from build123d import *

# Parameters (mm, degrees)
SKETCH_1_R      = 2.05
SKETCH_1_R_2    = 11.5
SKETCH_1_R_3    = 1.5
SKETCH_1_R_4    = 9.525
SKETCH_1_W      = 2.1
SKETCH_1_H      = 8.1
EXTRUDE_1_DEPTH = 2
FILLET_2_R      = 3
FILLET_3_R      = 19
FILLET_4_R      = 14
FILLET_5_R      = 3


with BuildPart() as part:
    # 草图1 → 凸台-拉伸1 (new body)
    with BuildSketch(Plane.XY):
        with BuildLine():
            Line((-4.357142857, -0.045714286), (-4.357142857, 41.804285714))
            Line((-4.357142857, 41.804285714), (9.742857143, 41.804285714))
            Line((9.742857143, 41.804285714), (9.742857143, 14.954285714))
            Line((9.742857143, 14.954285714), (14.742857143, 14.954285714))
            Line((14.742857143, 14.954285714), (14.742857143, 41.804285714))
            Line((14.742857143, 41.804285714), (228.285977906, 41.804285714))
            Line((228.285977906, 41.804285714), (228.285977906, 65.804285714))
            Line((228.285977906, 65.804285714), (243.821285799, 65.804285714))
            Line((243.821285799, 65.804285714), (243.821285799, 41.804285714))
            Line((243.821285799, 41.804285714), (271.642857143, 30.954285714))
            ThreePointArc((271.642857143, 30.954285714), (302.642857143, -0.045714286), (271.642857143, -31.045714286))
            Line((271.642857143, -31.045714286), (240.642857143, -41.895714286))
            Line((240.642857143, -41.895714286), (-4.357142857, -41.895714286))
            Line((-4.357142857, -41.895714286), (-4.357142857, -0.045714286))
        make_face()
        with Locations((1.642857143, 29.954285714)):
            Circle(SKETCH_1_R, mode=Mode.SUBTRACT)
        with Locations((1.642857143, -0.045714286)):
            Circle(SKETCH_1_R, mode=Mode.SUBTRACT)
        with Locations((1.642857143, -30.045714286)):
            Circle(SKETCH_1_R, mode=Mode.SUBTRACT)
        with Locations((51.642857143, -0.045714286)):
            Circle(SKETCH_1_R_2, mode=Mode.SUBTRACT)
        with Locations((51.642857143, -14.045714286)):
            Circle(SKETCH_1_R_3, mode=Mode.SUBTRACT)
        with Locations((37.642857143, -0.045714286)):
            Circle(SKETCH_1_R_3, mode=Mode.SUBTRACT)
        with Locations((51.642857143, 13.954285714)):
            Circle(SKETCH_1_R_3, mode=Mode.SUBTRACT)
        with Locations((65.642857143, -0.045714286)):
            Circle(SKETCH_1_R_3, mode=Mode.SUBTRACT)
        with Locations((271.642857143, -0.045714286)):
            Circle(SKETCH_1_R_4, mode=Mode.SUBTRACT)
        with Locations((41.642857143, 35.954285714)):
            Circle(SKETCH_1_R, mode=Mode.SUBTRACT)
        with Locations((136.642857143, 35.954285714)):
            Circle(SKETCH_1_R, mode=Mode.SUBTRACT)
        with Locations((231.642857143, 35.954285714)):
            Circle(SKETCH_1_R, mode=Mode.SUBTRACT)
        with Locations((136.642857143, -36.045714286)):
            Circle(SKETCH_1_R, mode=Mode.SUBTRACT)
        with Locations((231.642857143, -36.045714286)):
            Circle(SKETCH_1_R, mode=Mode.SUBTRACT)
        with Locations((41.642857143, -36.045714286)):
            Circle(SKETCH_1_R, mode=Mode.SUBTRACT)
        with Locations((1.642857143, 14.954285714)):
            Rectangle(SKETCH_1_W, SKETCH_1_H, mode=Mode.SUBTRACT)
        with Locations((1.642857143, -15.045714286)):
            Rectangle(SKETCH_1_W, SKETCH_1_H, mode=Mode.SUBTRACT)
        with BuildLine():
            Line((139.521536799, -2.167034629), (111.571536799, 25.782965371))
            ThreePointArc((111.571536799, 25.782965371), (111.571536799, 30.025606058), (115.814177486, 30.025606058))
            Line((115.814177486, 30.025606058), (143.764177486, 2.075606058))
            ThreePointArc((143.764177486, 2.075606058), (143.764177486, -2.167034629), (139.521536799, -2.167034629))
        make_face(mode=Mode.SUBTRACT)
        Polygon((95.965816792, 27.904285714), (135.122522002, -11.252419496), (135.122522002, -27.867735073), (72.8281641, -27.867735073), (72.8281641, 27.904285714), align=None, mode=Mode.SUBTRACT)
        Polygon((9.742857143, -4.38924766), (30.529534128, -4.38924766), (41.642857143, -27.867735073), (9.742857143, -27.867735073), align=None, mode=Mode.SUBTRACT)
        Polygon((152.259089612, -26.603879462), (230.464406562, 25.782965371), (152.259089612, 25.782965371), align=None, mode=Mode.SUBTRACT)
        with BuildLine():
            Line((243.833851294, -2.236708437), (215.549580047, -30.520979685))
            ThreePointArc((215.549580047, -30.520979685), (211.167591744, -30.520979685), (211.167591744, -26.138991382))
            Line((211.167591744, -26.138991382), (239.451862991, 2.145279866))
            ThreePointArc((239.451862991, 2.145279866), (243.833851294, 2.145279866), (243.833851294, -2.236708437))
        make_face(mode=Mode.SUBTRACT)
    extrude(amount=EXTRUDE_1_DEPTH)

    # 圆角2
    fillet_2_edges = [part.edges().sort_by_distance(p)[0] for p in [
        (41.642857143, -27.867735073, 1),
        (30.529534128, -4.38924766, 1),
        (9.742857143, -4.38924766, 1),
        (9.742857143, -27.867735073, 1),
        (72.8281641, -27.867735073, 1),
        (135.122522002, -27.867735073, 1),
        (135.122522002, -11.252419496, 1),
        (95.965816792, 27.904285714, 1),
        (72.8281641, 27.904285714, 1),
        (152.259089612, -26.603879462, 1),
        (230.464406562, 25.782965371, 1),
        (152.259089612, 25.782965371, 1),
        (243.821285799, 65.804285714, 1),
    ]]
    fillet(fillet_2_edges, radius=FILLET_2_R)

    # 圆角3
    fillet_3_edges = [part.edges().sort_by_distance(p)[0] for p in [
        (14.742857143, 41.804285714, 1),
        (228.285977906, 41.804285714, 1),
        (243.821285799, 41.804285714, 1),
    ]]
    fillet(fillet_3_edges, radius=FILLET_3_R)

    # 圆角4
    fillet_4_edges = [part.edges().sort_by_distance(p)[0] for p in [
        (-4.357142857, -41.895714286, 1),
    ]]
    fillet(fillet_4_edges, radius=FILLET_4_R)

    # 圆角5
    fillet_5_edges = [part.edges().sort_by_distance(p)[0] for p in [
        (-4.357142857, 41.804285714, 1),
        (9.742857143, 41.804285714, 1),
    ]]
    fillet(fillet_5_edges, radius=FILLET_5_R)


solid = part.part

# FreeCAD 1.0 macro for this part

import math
import FreeCAD as App
import Part
import Sketcher

V = App.Vector
Q = App.Units.Quantity


def edges_at(feature, points):
    """Names of the edges that pass closest to the given points."""
    edges = feature.Shape.Edges
    near = lambda p: min(range(len(edges)), key=lambda i: edges[i].distToShape(Part.Vertex(*p))[0])
    return sorted({f"Edge{near(p) + 1}" for p in points})

doc = App.newDocument("Part")
body = doc.addObject("PartDesign::Body", "Body")

sketch1 = body.newObject("Sketcher::SketchObject", "Sketch")
sketch1.AttachmentSupport = (doc.getObject("XY_Plane"), [""])
sketch1.MapMode = "FlatFace"
sketch1.addGeometry(Part.LineSegment(V(9.7, 41.8, 0), V(-4.4, 41.8, 0)), False)
sketch1.addGeometry(Part.LineSegment(V(-4.4, 41.8, 0), V(-4.4, -41.9, 0)), False)
sketch1.addGeometry(Part.LineSegment(V(-4.4, -41.9, 0), V(240.6, -41.9, 0)), False)
sketch1.addGeometry(Part.LineSegment(V(240.6, -41.9, 0), V(271.6, -31, 0)), False)
sketch1.addGeometry(Part.ArcOfCircle(Part.Circle(V(271.6, 0, 0), V(0, 0, 1), 31), math.radians(-90), math.radians(90)), False)
sketch1.addGeometry(Part.LineSegment(V(271.6, 31, 0), V(243.8, 41.8, 0)), False)
sketch1.addGeometry(Part.LineSegment(V(243.8, 41.8, 0), V(243.8, 65.8, 0)), False)
sketch1.addGeometry(Part.LineSegment(V(243.8, 65.8, 0), V(228.3, 65.8, 0)), False)
sketch1.addGeometry(Part.LineSegment(V(228.3, 65.8, 0), V(228.3, 41.8, 0)), False)
sketch1.addGeometry(Part.LineSegment(V(228.3, 41.8, 0), V(14.7, 41.8, 0)), False)
sketch1.addGeometry(Part.LineSegment(V(14.7, 41.8, 0), V(14.7, 15, 0)), False)
sketch1.addGeometry(Part.LineSegment(V(14.7, 15, 0), V(9.7, 15, 0)), False)
sketch1.addGeometry(Part.LineSegment(V(9.7, 15, 0), V(9.7, 41.8, 0)), False)
sketch1.addGeometry(Part.Circle(V(231.6, -36, 0), V(0, 0, 1), 2), False)
sketch1.addGeometry(Part.LineSegment(V(243.8, -2.2, 0), V(215.5, -30.5, 0)), False)
sketch1.addGeometry(Part.ArcOfCircle(Part.Circle(V(213.4, -28.3, 0), V(0, 0, 1), 3.1), math.radians(135), math.radians(315)), False)
sketch1.addGeometry(Part.LineSegment(V(211.2, -26.1, 0), V(239.5, 2.1, 0)), False)
sketch1.addGeometry(Part.ArcOfCircle(Part.Circle(V(241.6, 0, 0), V(0, 0, 1), 3.1), math.radians(-45), math.radians(135)), False)
sketch1.addGeometry(Part.LineSegment(V(152.3, -26.6, 0), V(152.3, 25.8, 0)), False)
sketch1.addGeometry(Part.LineSegment(V(152.3, 25.8, 0), V(230.5, 25.8, 0)), False)
sketch1.addGeometry(Part.LineSegment(V(230.5, 25.8, 0), V(152.3, -26.6, 0)), False)
sketch1.addGeometry(Part.Circle(V(136.6, -36, 0), V(0, 0, 1), 2), False)
sketch1.addGeometry(Part.Circle(V(41.6, -36, 0), V(0, 0, 1), 2), False)
sketch1.addGeometry(Part.Circle(V(1.6, -30, 0), V(0, 0, 1), 2), False)
sketch1.addGeometry(Part.Circle(V(51.6, -14, 0), V(0, 0, 1), 1.5), False)
sketch1.addGeometry(Part.LineSegment(V(9.7, -4.4, 0), V(30.5, -4.4, 0)), False)
sketch1.addGeometry(Part.LineSegment(V(30.5, -4.4, 0), V(41.6, -27.9, 0)), False)
sketch1.addGeometry(Part.LineSegment(V(41.6, -27.9, 0), V(9.7, -27.9, 0)), False)
sketch1.addGeometry(Part.LineSegment(V(9.7, -27.9, 0), V(9.7, -4.4, 0)), False)
sketch1.addGeometry(Part.LineSegment(V(0.6, -19.1, 0), V(0.6, -11, 0)), False)
sketch1.addGeometry(Part.LineSegment(V(0.6, -11, 0), V(2.7, -11, 0)), False)
sketch1.addGeometry(Part.LineSegment(V(2.7, -11, 0), V(2.7, -19.1, 0)), False)
sketch1.addGeometry(Part.LineSegment(V(2.7, -19.1, 0), V(0.6, -19.1, 0)), False)
sketch1.addGeometry(Part.Circle(V(271.6, 0, 0), V(0, 0, 1), 9.5), False)
sketch1.addGeometry(Part.Circle(V(231.6, 36, 0), V(0, 0, 1), 2), False)
sketch1.addGeometry(Part.LineSegment(V(96, 27.9, 0), V(135.1, -11.3, 0)), False)
sketch1.addGeometry(Part.LineSegment(V(135.1, -11.3, 0), V(135.1, -27.9, 0)), False)
sketch1.addGeometry(Part.LineSegment(V(135.1, -27.9, 0), V(72.8, -27.9, 0)), False)
sketch1.addGeometry(Part.LineSegment(V(72.8, -27.9, 0), V(72.8, 27.9, 0)), False)
sketch1.addGeometry(Part.LineSegment(V(72.8, 27.9, 0), V(96, 27.9, 0)), False)
sketch1.addGeometry(Part.LineSegment(V(139.5, -2.2, 0), V(111.6, 25.8, 0)), False)
sketch1.addGeometry(Part.ArcOfCircle(Part.Circle(V(113.7, 27.9, 0), V(0, 0, 1), 3), math.radians(45), math.radians(225)), False)
sketch1.addGeometry(Part.LineSegment(V(115.8, 30, 0), V(143.8, 2.1, 0)), False)
sketch1.addGeometry(Part.ArcOfCircle(Part.Circle(V(141.6, 0, 0), V(0, 0, 1), 3), math.radians(-135), math.radians(45)), False)
sketch1.addGeometry(Part.Circle(V(65.6, 0, 0), V(0, 0, 1), 1.5), False)
sketch1.addGeometry(Part.Circle(V(51.6, 0, 0), V(0, 0, 1), 11.5), False)
sketch1.addGeometry(Part.Circle(V(37.6, 0, 0), V(0, 0, 1), 1.5), False)
sketch1.addGeometry(Part.Circle(V(1.6, 0, 0), V(0, 0, 1), 2), False)
sketch1.addGeometry(Part.Circle(V(51.6, 14, 0), V(0, 0, 1), 1.5), False)
sketch1.addGeometry(Part.LineSegment(V(0.6, 10.9, 0), V(0.6, 19, 0)), False)
sketch1.addGeometry(Part.LineSegment(V(0.6, 19, 0), V(2.7, 19, 0)), False)
sketch1.addGeometry(Part.LineSegment(V(2.7, 19, 0), V(2.7, 10.9, 0)), False)
sketch1.addGeometry(Part.LineSegment(V(2.7, 10.9, 0), V(0.6, 10.9, 0)), False)
sketch1.addGeometry(Part.Circle(V(136.6, 36, 0), V(0, 0, 1), 2), False)
sketch1.addGeometry(Part.Circle(V(41.6, 36, 0), V(0, 0, 1), 2), False)
sketch1.addGeometry(Part.Circle(V(1.6, 30, 0), V(0, 0, 1), 2), False)
sketch1.addConstraint(Sketcher.Constraint("Coincident", 0, 2, 1, 1))
sketch1.addConstraint(Sketcher.Constraint("Coincident", 1, 2, 2, 1))
sketch1.addConstraint(Sketcher.Constraint("Coincident", 2, 2, 3, 1))
sketch1.addConstraint(Sketcher.Constraint("Coincident", 3, 2, 4, 1))
sketch1.addConstraint(Sketcher.Constraint("Coincident", 4, 2, 5, 1))
sketch1.addConstraint(Sketcher.Constraint("Coincident", 5, 2, 6, 1))
sketch1.addConstraint(Sketcher.Constraint("Coincident", 6, 2, 7, 1))
sketch1.addConstraint(Sketcher.Constraint("Coincident", 7, 2, 8, 1))
sketch1.addConstraint(Sketcher.Constraint("Coincident", 8, 2, 9, 1))
sketch1.addConstraint(Sketcher.Constraint("Coincident", 9, 2, 10, 1))
sketch1.addConstraint(Sketcher.Constraint("Coincident", 10, 2, 11, 1))
sketch1.addConstraint(Sketcher.Constraint("Coincident", 11, 2, 12, 1))
sketch1.addConstraint(Sketcher.Constraint("Coincident", 12, 2, 0, 1))
sketch1.addConstraint(Sketcher.Constraint("Tangent", 14, 2, 15, 2))
sketch1.addConstraint(Sketcher.Constraint("Tangent", 15, 1, 16, 1))
sketch1.addConstraint(Sketcher.Constraint("Tangent", 16, 2, 17, 2))
sketch1.addConstraint(Sketcher.Constraint("Tangent", 17, 1, 14, 1))
sketch1.addConstraint(Sketcher.Constraint("Coincident", 18, 2, 19, 1))
sketch1.addConstraint(Sketcher.Constraint("Coincident", 19, 2, 20, 1))
sketch1.addConstraint(Sketcher.Constraint("Coincident", 20, 2, 18, 1))
sketch1.addConstraint(Sketcher.Constraint("Coincident", 25, 2, 26, 1))
sketch1.addConstraint(Sketcher.Constraint("Coincident", 26, 2, 27, 1))
sketch1.addConstraint(Sketcher.Constraint("Coincident", 27, 2, 28, 1))
sketch1.addConstraint(Sketcher.Constraint("Coincident", 28, 2, 25, 1))
sketch1.addConstraint(Sketcher.Constraint("Coincident", 29, 2, 30, 1))
sketch1.addConstraint(Sketcher.Constraint("Coincident", 30, 2, 31, 1))
sketch1.addConstraint(Sketcher.Constraint("Coincident", 31, 2, 32, 1))
sketch1.addConstraint(Sketcher.Constraint("Coincident", 32, 2, 29, 1))
sketch1.addConstraint(Sketcher.Constraint("Coincident", 35, 2, 36, 1))
sketch1.addConstraint(Sketcher.Constraint("Coincident", 36, 2, 37, 1))
sketch1.addConstraint(Sketcher.Constraint("Coincident", 37, 2, 38, 1))
sketch1.addConstraint(Sketcher.Constraint("Coincident", 38, 2, 39, 1))
sketch1.addConstraint(Sketcher.Constraint("Coincident", 39, 2, 35, 1))
sketch1.addConstraint(Sketcher.Constraint("Tangent", 40, 2, 41, 2))
sketch1.addConstraint(Sketcher.Constraint("Tangent", 41, 1, 42, 1))
sketch1.addConstraint(Sketcher.Constraint("Tangent", 42, 2, 43, 2))
sketch1.addConstraint(Sketcher.Constraint("Tangent", 43, 1, 40, 1))
sketch1.addConstraint(Sketcher.Constraint("Coincident", 49, 2, 50, 1))
sketch1.addConstraint(Sketcher.Constraint("Coincident", 50, 2, 51, 1))
sketch1.addConstraint(Sketcher.Constraint("Coincident", 51, 2, 52, 1))
sketch1.addConstraint(Sketcher.Constraint("Coincident", 52, 2, 49, 1))
sketch1.addConstraint(Sketcher.Constraint("Horizontal", 0))
sketch1.addConstraint(Sketcher.Constraint("Vertical", 1))
sketch1.addConstraint(Sketcher.Constraint("Horizontal", 2))
sketch1.addConstraint(Sketcher.Constraint("Vertical", 6))
sketch1.addConstraint(Sketcher.Constraint("Horizontal", 7))
sketch1.addConstraint(Sketcher.Constraint("Vertical", 8))
sketch1.addConstraint(Sketcher.Constraint("Horizontal", 9))
sketch1.addConstraint(Sketcher.Constraint("Vertical", 10))
sketch1.addConstraint(Sketcher.Constraint("Horizontal", 11))
sketch1.addConstraint(Sketcher.Constraint("Vertical", 12))
sketch1.addConstraint(Sketcher.Constraint("Vertical", 18))
sketch1.addConstraint(Sketcher.Constraint("Horizontal", 19))
sketch1.addConstraint(Sketcher.Constraint("Horizontal", 25))
sketch1.addConstraint(Sketcher.Constraint("Horizontal", 27))
sketch1.addConstraint(Sketcher.Constraint("Vertical", 28))
sketch1.addConstraint(Sketcher.Constraint("Vertical", 29))
sketch1.addConstraint(Sketcher.Constraint("Horizontal", 30))
sketch1.addConstraint(Sketcher.Constraint("Vertical", 31))
sketch1.addConstraint(Sketcher.Constraint("Horizontal", 32))
sketch1.addConstraint(Sketcher.Constraint("Vertical", 36))
sketch1.addConstraint(Sketcher.Constraint("Horizontal", 37))
sketch1.addConstraint(Sketcher.Constraint("Vertical", 38))
sketch1.addConstraint(Sketcher.Constraint("Horizontal", 39))
sketch1.addConstraint(Sketcher.Constraint("Vertical", 49))
sketch1.addConstraint(Sketcher.Constraint("Horizontal", 50))
sketch1.addConstraint(Sketcher.Constraint("Vertical", 51))
sketch1.addConstraint(Sketcher.Constraint("Horizontal", 52))
sketch1.addConstraint(Sketcher.Constraint("Coincident", 33, 3, 4, 3))
sketch1.addConstraint(Sketcher.Constraint("Equal", 15, 17))
sketch1.addConstraint(Sketcher.Constraint("Equal", 13, 21))
sketch1.addConstraint(Sketcher.Constraint("Equal", 21, 22))
sketch1.addConstraint(Sketcher.Constraint("Equal", 22, 23))
sketch1.addConstraint(Sketcher.Constraint("Equal", 23, 34))
sketch1.addConstraint(Sketcher.Constraint("Equal", 41, 43))
sketch1.addConstraint(Sketcher.Constraint("Equal", 24, 44))
sketch1.addConstraint(Sketcher.Constraint("Equal", 44, 46))
sketch1.addConstraint(Sketcher.Constraint("Equal", 34, 47))
sketch1.addConstraint(Sketcher.Constraint("Equal", 46, 48))
sketch1.addConstraint(Sketcher.Constraint("Equal", 47, 53))
sketch1.addConstraint(Sketcher.Constraint("Equal", 53, 54))
sketch1.addConstraint(Sketcher.Constraint("Equal", 54, 55))
sketch1.addConstraint(Sketcher.Constraint("Perpendicular", 16, 35))
sketch1.addConstraint(Sketcher.Constraint("Parallel", 35, 40))
sketch1.addConstraint(Sketcher.Constraint("Horizontal", 4, 3, 17, 3))
sketch1.addConstraint(Sketcher.Constraint("Horizontal", 13, 3, 21, 3))
sketch1.addConstraint(Sketcher.Constraint("Horizontal", 21, 3, 22, 3))
sketch1.addConstraint(Sketcher.Constraint("Horizontal", 33, 3, 43, 3))
sketch1.addConstraint(Sketcher.Constraint("Horizontal", 43, 3, 44, 3))
sketch1.addConstraint(Sketcher.Constraint("Horizontal", 44, 3, 45, 3))
sketch1.addConstraint(Sketcher.Constraint("Horizontal", 45, 3, 46, 3))
sketch1.addConstraint(Sketcher.Constraint("Horizontal", 46, 3, 47, 3))
sketch1.addConstraint(Sketcher.Constraint("Horizontal", 34, 3, 53, 3))
sketch1.addConstraint(Sketcher.Constraint("Horizontal", 53, 3, 54, 3))
sketch1.addConstraint(Sketcher.Constraint("Horizontal", 0, 2, 5, 2))
sketch1.addConstraint(Sketcher.Constraint("Horizontal", 5, 2, 8, 2))
sketch1.addConstraint(Sketcher.Constraint("Horizontal", 27, 2, 36, 2))
sketch1.addConstraint(Sketcher.Constraint("Horizontal", 41, 3, 38, 2))
sketch1.addConstraint(Sketcher.Constraint("Horizontal", 19, 2, 40, 2))
sketch1.addConstraint(Sketcher.Constraint("Vertical", 13, 3, 34, 3))
sketch1.addConstraint(Sketcher.Constraint("Vertical", 24, 3, 45, 3))
sketch1.addConstraint(Sketcher.Constraint("Vertical", 23, 3, 47, 3))
sketch1.addConstraint(Sketcher.Constraint("Vertical", 45, 3, 48, 3))
sketch1.addConstraint(Sketcher.Constraint("Vertical", 21, 3, 53, 3))
sketch1.addConstraint(Sketcher.Constraint("Vertical", 22, 3, 54, 3))
sketch1.addConstraint(Sketcher.Constraint("Vertical", 47, 3, 55, 3))
sketch1.addConstraint(Sketcher.Constraint("Vertical", 33, 3, 3, 2))
sketch1.addConstraint(Sketcher.Constraint("Vertical", 3, 2, 4, 2))
sketch1.addConstraint(Sketcher.Constraint("Vertical", 54, 3, 26, 2))
sketch1.addConstraint(Sketcher.Constraint("Vertical", 12, 2, 27, 2))
sketch1.addConstraint(Sketcher.Constraint("Vertical", 32, 2, 49, 2))
sketch1.addConstraint(Sketcher.Constraint("Vertical", 31, 2, 50, 2))
sketch1.addConstraint(Sketcher.Constraint("Equal", 31, 49))
sketch1.addConstraint(Sketcher.Constraint("Diameter", 24, Q("3 mm")))
sketch1.addConstraint(Sketcher.Constraint("Diameter", 45, Q("23 mm")))
sketch1.addConstraint(Sketcher.Constraint("Radius", 4, Q("31 mm")))
sketch1.addConstraint(Sketcher.Constraint("Radius", 41, Q("3 mm")))
sketch1.addConstraint(Sketcher.Constraint("Diameter", 13, Q("4.1 mm")))
sketch1.addConstraint(Sketcher.Constraint("Diameter", 33, Q("19.05 mm")))
sketch1.addConstraint(Sketcher.Constraint("DistanceX", 2, 1, 2, 2, Q("245 mm")))
sketch1.addConstraint(Sketcher.Constraint("DistanceX", 11, 2, 11, 1, Q("5 mm")))
sketch1.addConstraint(Sketcher.Constraint("DistanceY", 6, 1, 6, 2, Q("24 mm")))
sketch1.addConstraint(Sketcher.Constraint("Angle", 14, Q("-135 deg")))
sketch1.addConstraint(Sketcher.Constraint("Distance", 14, Q("40 mm")))
sketch1.addConstraint(Sketcher.Constraint("DistanceX", 0, 2, 0, 1, Q("14.1 mm")))
sketch1.addConstraint(Sketcher.Constraint("DistanceX", 27, 2, 27, 1, Q("31.9 mm")))
sketch1.addConstraint(Sketcher.Constraint("DistanceX", 30, 1, 30, 2, Q("2.1 mm")))
sketch1.addConstraint(Sketcher.Constraint("DistanceY", 1, 2, 1, 1, Q("83.7 mm")))
sketch1.addConstraint(Sketcher.Constraint("DistanceY", 29, 1, 29, 2, Q("8.1 mm")))
sketch1.addConstraint(Sketcher.Constraint("DistanceY", 10, 2, 10, 1, Q("26.85 mm")))
sketch1.addConstraint(Sketcher.Constraint("Radius", 15, Q("3.098534 mm")))
sketch1.addConstraint(Sketcher.Constraint("DistanceX", 9, 2, 9, 1, Q("213.543121 mm")))
sketch1.addConstraint(Sketcher.Constraint("DistanceY", 38, 1, 38, 2, Q("55.772021 mm")))
sketch1.addConstraint(Sketcher.Constraint("Distance", 3, Q("32.843911 mm")))
sketch1.addConstraint(Sketcher.Constraint("Distance", 5, Q("29.86239 mm")))
sketch1.addConstraint(Sketcher.Constraint("Distance", 20, Q("94.12998 mm")))
sketch1.addConstraint(Sketcher.Constraint("Distance", 26, Q("25.97586 mm")))
sketch1.addConstraint(Sketcher.Constraint("Distance", 40, Q("39.527269 mm")))
sketch1.addConstraint(Sketcher.Constraint("DistanceX", 7, 2, 7, 1, Q("15.535308 mm")))
sketch1.addConstraint(Sketcher.Constraint("DistanceX", 19, 1, 19, 2, Q("78.205317 mm")))
sketch1.addConstraint(Sketcher.Constraint("DistanceX", 25, 1, 25, 2, Q("20.786677 mm")))
sketch1.addConstraint(Sketcher.Constraint("DistanceX", 37, 2, 37, 1, Q("62.294358 mm")))
sketch1.addConstraint(Sketcher.Constraint("DistanceX", 39, 1, 39, 2, Q("23.137653 mm")))
sketch1.addConstraint(Sketcher.Constraint("DistanceX", -1, 1, 14, 2, Q("215.54958 mm")))
sketch1.addConstraint(Sketcher.Constraint("DistanceY", 14, 2, -1, 1, Q("30.52098 mm")))
sketch1.addConstraint(Sketcher.Constraint("DistanceX", -1, 1, 18, 2, Q("152.25909 mm")))
sketch1.addConstraint(Sketcher.Constraint("DistanceX", -1, 1, 4, 3, Q("271.642857 mm")))
sketch1.addConstraint(Sketcher.Constraint("DistanceX", -1, 1, 13, 3, Q("231.642857 mm")))
sketch1.addConstraint(Sketcher.Constraint("DistanceY", 13, 3, -1, 1, Q("36.045714 mm")))
sketch1.addConstraint(Sketcher.Constraint("DistanceX", -1, 1, 21, 3, Q("136.642857 mm")))
sketch1.addConstraint(Sketcher.Constraint("DistanceX", -1, 1, 23, 3, Q("1.642857 mm")))
sketch1.addConstraint(Sketcher.Constraint("DistanceY", 23, 3, -1, 1, Q("30.045714 mm")))
sketch1.addConstraint(Sketcher.Constraint("DistanceX", -1, 1, 24, 3, Q("51.642857 mm")))
sketch1.addConstraint(Sketcher.Constraint("DistanceY", 24, 3, -1, 1, Q("14.045714 mm")))
sketch1.addConstraint(Sketcher.Constraint("DistanceY", -1, 1, 34, 3, Q("35.954286 mm")))
sketch1.addConstraint(Sketcher.Constraint("DistanceX", -1, 1, 41, 3, Q("113.692857 mm")))
sketch1.addConstraint(Sketcher.Constraint("DistanceX", -1, 1, 44, 3, Q("65.642857 mm")))
sketch1.addConstraint(Sketcher.Constraint("DistanceX", -1, 1, 46, 3, Q("37.642857 mm")))
sketch1.addConstraint(Sketcher.Constraint("DistanceY", -1, 1, 48, 3, Q("13.954286 mm")))
sketch1.addConstraint(Sketcher.Constraint("DistanceY", -1, 1, 55, 3, Q("29.954286 mm")))
sketch1.addConstraint(Sketcher.Constraint("DistanceX", -1, 1, 29, 2, Q("0.592857 mm")))
sketch1.addConstraint(Sketcher.Constraint("DistanceY", 29, 2, -1, 1, Q("10.995714 mm")))
sketch1.addConstraint(Sketcher.Constraint("DistanceX", -1, 1, 35, 2, Q("135.122522 mm")))
sketch1.addConstraint(Sketcher.Constraint("DistanceY", -1, 1, 49, 2, Q("19.004286 mm")))
pad1 = body.newObject("PartDesign::Pad", "Pad")
pad1.Profile = sketch1
pad1.Length = 2
doc.recompute()

fillet = body.newObject("PartDesign::Fillet", "Fillet")
fillet.Base = (pad1, edges_at(pad1, [
    (41.643, -27.868, 1),
    (30.53, -4.389, 1),
    (9.743, -4.389, 1),
    (9.743, -27.868, 1),
    (72.828, -27.868, 1),
    (135.123, -27.868, 1),
    (135.123, -11.252, 1),
    (95.966, 27.904, 1),
    (72.828, 27.904, 1),
    (152.259, -26.604, 1),
    (230.464, 25.783, 1),
    (152.259, 25.783, 1),
    (243.821, 65.804, 1),
]))
fillet.Radius = 3
doc.recompute()

fillet2 = body.newObject("PartDesign::Fillet", "Fillet001")
fillet2.Base = (fillet, edges_at(fillet, [(14.743, 41.804, 1), (228.286, 41.804, 1), (243.821, 41.804, 1)]))
fillet2.Radius = 19
doc.recompute()

fillet3 = body.newObject("PartDesign::Fillet", "Fillet002")
fillet3.Base = (fillet2, edges_at(fillet2, [(-4.357, -41.896, 1)]))
fillet3.Radius = 14
doc.recompute()

fillet4 = body.newObject("PartDesign::Fillet", "Fillet003")
fillet4.Base = (fillet3, edges_at(fillet3, [(-4.357, 41.804, 1), (9.743, 41.804, 1)]))
fillet4.Radius = 3

doc.recompute()
